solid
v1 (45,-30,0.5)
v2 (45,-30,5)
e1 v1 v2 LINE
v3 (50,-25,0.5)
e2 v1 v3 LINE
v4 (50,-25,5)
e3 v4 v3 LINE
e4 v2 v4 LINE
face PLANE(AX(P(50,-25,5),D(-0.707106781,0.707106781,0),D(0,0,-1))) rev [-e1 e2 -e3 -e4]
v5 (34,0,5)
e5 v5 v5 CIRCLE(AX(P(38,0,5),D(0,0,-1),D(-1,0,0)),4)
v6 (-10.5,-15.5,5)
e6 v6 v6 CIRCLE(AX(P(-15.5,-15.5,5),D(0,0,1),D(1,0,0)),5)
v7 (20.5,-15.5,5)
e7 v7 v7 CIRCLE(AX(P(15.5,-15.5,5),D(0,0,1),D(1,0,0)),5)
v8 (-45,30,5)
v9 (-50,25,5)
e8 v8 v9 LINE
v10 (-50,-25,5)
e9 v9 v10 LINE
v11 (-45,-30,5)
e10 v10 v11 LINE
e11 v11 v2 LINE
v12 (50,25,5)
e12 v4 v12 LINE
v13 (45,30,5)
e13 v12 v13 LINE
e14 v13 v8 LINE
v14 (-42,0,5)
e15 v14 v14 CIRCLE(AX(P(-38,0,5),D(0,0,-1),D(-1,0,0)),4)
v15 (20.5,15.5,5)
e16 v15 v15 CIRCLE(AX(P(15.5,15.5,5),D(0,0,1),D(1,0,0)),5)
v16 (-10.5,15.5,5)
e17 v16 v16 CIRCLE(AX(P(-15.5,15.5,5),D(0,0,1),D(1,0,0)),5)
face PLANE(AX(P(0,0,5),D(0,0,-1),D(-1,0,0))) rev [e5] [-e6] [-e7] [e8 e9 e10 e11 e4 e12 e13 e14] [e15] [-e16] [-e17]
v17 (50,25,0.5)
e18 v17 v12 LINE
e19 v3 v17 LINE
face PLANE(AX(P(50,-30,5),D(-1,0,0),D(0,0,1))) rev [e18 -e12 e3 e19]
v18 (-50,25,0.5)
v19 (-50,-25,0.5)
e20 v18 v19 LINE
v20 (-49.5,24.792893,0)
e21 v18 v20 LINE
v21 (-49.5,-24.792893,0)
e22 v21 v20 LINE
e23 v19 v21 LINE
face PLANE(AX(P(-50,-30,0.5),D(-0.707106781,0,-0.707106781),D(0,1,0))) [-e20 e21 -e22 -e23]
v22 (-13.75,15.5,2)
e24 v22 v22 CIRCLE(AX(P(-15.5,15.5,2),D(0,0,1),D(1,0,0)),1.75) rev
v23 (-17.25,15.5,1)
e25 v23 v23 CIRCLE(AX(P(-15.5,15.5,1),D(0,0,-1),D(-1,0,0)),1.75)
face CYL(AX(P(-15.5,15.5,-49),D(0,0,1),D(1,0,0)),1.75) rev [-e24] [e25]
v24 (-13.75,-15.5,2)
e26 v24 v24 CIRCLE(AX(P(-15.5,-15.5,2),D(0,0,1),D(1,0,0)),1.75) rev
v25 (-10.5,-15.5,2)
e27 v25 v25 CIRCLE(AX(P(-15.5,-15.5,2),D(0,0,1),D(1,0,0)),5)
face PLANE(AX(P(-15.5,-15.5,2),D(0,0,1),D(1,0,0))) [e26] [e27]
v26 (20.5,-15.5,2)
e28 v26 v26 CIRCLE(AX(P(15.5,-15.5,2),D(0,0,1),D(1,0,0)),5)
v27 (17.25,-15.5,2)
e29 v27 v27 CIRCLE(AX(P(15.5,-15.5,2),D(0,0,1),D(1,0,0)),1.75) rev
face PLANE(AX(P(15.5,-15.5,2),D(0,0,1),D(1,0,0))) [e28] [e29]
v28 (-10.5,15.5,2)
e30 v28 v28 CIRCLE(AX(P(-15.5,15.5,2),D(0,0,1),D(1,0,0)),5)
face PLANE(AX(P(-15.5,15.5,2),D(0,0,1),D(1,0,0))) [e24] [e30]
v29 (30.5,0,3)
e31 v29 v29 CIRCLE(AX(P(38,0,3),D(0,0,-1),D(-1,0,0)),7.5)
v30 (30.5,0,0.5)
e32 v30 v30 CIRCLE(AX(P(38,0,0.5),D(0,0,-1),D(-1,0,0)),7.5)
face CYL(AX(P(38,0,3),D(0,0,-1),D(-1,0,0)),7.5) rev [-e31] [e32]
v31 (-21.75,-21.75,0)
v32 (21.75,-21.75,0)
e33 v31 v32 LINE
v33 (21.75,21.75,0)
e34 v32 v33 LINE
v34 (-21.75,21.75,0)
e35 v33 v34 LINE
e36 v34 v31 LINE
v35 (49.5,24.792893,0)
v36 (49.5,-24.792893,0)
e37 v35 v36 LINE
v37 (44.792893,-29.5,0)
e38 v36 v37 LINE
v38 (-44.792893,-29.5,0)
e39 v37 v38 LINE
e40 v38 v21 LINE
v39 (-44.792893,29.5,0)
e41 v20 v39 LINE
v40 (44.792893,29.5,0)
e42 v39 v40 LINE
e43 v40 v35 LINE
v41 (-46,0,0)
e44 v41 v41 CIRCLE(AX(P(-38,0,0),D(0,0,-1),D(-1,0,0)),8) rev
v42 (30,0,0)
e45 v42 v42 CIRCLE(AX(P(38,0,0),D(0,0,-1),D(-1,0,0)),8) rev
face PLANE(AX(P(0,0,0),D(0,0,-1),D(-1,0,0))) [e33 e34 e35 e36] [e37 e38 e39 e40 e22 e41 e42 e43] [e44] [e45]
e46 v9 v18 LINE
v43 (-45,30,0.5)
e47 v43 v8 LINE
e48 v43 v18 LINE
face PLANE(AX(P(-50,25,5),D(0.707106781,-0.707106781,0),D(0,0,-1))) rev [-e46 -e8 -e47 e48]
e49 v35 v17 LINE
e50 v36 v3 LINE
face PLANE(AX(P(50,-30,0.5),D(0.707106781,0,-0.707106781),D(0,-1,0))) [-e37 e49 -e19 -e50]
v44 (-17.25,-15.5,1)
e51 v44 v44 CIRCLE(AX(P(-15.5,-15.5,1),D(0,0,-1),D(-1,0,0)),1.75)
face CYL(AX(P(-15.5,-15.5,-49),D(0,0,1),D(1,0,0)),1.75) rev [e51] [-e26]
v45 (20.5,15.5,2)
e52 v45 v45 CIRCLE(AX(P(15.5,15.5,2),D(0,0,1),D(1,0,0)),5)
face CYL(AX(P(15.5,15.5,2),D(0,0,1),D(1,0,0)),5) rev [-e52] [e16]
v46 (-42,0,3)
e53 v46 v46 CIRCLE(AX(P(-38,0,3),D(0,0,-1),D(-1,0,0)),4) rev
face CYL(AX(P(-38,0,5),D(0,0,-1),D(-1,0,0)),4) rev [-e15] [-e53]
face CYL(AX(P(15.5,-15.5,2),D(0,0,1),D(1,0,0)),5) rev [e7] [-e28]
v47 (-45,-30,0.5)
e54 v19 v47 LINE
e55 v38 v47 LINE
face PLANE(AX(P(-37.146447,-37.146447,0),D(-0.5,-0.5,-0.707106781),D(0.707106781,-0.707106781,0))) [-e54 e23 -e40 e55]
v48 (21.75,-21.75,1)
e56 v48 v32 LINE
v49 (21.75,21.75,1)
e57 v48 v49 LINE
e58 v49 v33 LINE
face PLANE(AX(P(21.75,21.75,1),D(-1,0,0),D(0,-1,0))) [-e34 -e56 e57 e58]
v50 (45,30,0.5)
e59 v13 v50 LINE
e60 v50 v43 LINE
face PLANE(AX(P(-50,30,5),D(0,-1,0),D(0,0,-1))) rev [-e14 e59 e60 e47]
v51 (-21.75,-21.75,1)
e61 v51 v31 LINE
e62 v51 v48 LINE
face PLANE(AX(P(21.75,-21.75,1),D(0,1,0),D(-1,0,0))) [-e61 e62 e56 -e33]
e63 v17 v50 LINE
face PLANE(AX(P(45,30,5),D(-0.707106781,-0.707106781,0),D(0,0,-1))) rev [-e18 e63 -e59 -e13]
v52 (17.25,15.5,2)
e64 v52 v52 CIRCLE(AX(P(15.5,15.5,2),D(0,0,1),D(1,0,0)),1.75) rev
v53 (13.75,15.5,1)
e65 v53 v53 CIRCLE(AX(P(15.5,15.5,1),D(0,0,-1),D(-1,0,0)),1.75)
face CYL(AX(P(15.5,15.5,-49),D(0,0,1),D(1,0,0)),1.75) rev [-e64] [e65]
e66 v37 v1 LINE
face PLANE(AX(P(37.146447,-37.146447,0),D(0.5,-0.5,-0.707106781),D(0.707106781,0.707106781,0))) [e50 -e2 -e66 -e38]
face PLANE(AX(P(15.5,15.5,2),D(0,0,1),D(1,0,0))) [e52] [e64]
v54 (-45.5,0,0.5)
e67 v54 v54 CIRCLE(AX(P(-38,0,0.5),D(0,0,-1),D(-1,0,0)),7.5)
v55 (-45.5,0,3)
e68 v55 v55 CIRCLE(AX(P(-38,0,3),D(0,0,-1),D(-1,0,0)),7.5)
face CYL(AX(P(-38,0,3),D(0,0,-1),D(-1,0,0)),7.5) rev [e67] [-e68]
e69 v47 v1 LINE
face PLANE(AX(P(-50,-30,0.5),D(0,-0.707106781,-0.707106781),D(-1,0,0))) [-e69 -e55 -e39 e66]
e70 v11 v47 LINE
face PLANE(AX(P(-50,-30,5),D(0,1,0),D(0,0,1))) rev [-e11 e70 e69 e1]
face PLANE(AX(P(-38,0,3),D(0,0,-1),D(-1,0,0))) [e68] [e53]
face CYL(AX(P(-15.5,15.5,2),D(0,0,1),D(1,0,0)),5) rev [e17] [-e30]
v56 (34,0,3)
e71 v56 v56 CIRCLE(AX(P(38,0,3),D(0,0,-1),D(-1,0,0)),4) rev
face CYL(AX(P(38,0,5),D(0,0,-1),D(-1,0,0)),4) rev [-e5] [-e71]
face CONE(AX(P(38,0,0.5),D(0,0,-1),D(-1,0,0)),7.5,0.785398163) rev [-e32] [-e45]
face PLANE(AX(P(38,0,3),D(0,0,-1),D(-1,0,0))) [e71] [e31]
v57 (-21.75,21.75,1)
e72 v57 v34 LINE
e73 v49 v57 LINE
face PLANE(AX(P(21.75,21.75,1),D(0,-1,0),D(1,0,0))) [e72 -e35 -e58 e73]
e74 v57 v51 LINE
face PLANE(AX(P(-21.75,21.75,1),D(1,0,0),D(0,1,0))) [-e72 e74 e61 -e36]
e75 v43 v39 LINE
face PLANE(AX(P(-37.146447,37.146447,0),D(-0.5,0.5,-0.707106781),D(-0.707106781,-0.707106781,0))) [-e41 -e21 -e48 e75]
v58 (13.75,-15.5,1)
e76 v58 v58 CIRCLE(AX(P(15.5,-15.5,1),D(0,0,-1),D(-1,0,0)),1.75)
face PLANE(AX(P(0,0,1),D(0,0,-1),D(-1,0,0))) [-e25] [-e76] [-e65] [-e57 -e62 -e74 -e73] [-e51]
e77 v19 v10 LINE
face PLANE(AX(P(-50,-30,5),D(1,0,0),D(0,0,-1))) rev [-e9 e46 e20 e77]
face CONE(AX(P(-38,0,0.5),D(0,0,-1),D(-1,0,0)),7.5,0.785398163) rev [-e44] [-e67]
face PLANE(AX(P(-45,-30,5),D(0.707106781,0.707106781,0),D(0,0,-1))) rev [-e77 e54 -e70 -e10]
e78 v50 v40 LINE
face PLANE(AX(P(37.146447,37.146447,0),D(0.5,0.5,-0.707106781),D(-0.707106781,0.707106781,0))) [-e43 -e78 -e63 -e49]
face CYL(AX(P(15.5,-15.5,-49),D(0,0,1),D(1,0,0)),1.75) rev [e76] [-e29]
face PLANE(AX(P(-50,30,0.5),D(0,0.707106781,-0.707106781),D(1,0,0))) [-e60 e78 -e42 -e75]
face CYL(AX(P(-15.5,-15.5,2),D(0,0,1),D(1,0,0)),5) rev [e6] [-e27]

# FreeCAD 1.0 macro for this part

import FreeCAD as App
import Part
import Sketcher
from FreeCAD import Vector
Q = App.Units.Quantity


def edges_at(feature, points):
    """Names of the edges that pass closest to the given points."""
    edges = feature.Shape.Edges
    near = lambda p: min(range(len(edges)), key=lambda i: edges[i].distToShape(Part.Vertex(*p))[0])
    return sorted({f"Edge{near(p) + 1}" for p in points})

doc = App.newDocument("Part")
body = doc.addObject("PartDesign::Body", "Body")

sketch1 = body.newObject("Sketcher::SketchObject", "Sketch")
sketch1.AttachmentSupport = (doc.getObject("XY_Plane"), [""])
sketch1.MapMode = "FlatFace"
sketch1.addGeometry([
    Part.LineSegment(Vector(-50, 30, 0), Vector(-50, -30, 0)),
    Part.LineSegment(Vector(-50, -30, 0), Vector(50, -30, 0)),
    Part.LineSegment(Vector(50, -30, 0), Vector(50, 30, 0)),
    Part.LineSegment(Vector(50, 30, 0), Vector(-50, 30, 0)),
], False)
sketch1.addConstraint([
    Sketcher.Constraint("Coincident", 0, 2, 1, 1),
    Sketcher.Constraint("Coincident", 1, 2, 2, 1),
    Sketcher.Constraint("Coincident", 2, 2, 3, 1),
    Sketcher.Constraint("Coincident", 3, 2, 0, 1),
    Sketcher.Constraint("Vertical", 0),
    Sketcher.Constraint("Horizontal", 1),
    Sketcher.Constraint("Vertical", 2),
    Sketcher.Constraint("Horizontal", 3),
    Sketcher.Constraint("Symmetric", 0, 2, 2, 2, -1, 1),
    Sketcher.Constraint("DistanceX", 1, 1, 1, 2, Q("100 mm")),
    Sketcher.Constraint("DistanceY", 0, 2, 0, 1, Q("60 mm")),
])
pad1 = body.newObject("PartDesign::Pad", "Pad")
pad1.Profile = sketch1
pad1.Length = 5

sketch2 = body.newObject("Sketcher::SketchObject", "Sketch001")
sketch2.AttachmentSupport = (doc.getObject("XY_Plane"), [""])
sketch2.MapMode = "FlatFace"
sketch2.addGeometry([
    Part.LineSegment(Vector(-22, 22, 0), Vector(-22, -22, 0)),
    Part.LineSegment(Vector(-22, -22, 0), Vector(22, -22, 0)),
    Part.LineSegment(Vector(22, -22, 0), Vector(22, 22, 0)),
    Part.LineSegment(Vector(22, 22, 0), Vector(-22, 22, 0)),
], False)
sketch2.addConstraint([
    Sketcher.Constraint("Coincident", 0, 2, 1, 1),
    Sketcher.Constraint("Coincident", 1, 2, 2, 1),
    Sketcher.Constraint("Coincident", 2, 2, 3, 1),
    Sketcher.Constraint("Coincident", 3, 2, 0, 1),
    Sketcher.Constraint("Vertical", 0),
    Sketcher.Constraint("Horizontal", 1),
    Sketcher.Constraint("Vertical", 2),
    Sketcher.Constraint("Horizontal", 3),
    Sketcher.Constraint("Symmetric", 0, 2, 2, 2, -1, 1),
    Sketcher.Constraint("Equal", 3, 0),
    Sketcher.Constraint("DistanceX", 1, 1, 1, 2, Q("43.5 mm")),
])
pocket1 = body.newObject("PartDesign::Pocket", "Pocket")
pocket1.Profile = sketch2
pocket1.Length = 1
pocket1.Reversed = True

sketch3 = body.newObject("Sketcher::SketchObject", "Sketch002")
sketch3.AttachmentSupport = (doc.getObject("XY_Plane"), [""])
sketch3.MapMode = "FlatFace"
sketch3.AttachmentOffset = App.Placement(Vector(0, 0, -48), App.Rotation())
sketch3.addGeometry([
    Part.Circle(Vector(-15.5, 15.5, 0), Vector(0, 0, 1), 1.8),
    Part.Circle(Vector(15.5, 15.5, 0), Vector(0, 0, 1), 1.8),
    Part.Circle(Vector(15.5, -15.5, 0), Vector(0, 0, 1), 1.8),
    Part.Circle(Vector(-15.5, -15.5, 0), Vector(0, 0, 1), 1.8),
], False)
sketch3.addConstraint([
    Sketcher.Constraint("Equal", 0, 1),
    Sketcher.Constraint("Equal", 1, 2),
    Sketcher.Constraint("Equal", 2, 3),
    Sketcher.Constraint("Symmetric", 0, 3, 2, 3, -1, 1),
    Sketcher.Constraint("Symmetric", 1, 3, 3, 3, -1, 1),
    Sketcher.Constraint("Symmetric", 0, 3, 1, 3, -2),
    Sketcher.Constraint("Diameter", 0, Q("3.5 mm")),
    Sketcher.Constraint("DistanceX", 0, 3, 1, 3, Q("31 mm")),
    Sketcher.Constraint("DistanceY", 2, 3, 1, 3, Q("31 mm")),
])
pocket2 = body.newObject("PartDesign::Pocket", "Pocket001")
pocket2.Profile = sketch3
pocket2.Type = "ThroughAll"
pocket2.Midplane = True

sketch4 = body.newObject("Sketcher::SketchObject", "Sketch003")
sketch4.AttachmentSupport = (doc.getObject("XY_Plane"), [""])
sketch4.MapMode = "FlatFace"
sketch4.AttachmentOffset = App.Placement(Vector(0, 0, 5), App.Rotation())
sketch4.addGeometry([
    Part.Circle(Vector(-16, 16, 0), Vector(0, 0, 1), 5),
    Part.Circle(Vector(16, 16, 0), Vector(0, 0, 1), 5),
    Part.Circle(Vector(15, -16, 0), Vector(0, 0, 1), 5),
    Part.Circle(Vector(-16, -16, 0), Vector(0, 0, 1), 5),
], False)
sketch4.addConstraint([
    Sketcher.Constraint("Equal", 0, 1),
    Sketcher.Constraint("Equal", 1, 2),
    Sketcher.Constraint("Equal", 2, 3),
    Sketcher.Constraint("Symmetric", 0, 3, 2, 3, -1, 1),
    Sketcher.Constraint("Symmetric", 1, 3, 3, 3, -1, 1),
    Sketcher.Constraint("Symmetric", 0, 3, 1, 3, -2),
    Sketcher.Constraint("Diameter", 0, Q("10 mm")),
    Sketcher.Constraint("DistanceX", 0, 3, 1, 3, Q("31 mm")),
    Sketcher.Constraint("DistanceY", 2, 3, 1, 3, Q("31 mm")),
])
pocket3 = body.newObject("PartDesign::Pocket", "Pocket002")
pocket3.Profile = sketch4
pocket3.Length = 3

sketch5 = body.newObject("Sketcher::SketchObject", "Sketch004")
sketch5.AttachmentSupport = (doc.getObject("XY_Plane"), [""])
sketch5.MapMode = "FlatFace"
sketch5.addGeometry([
    Part.Circle(Vector(38, 0, 0), Vector(0, 0, 1), 4),
    Part.Circle(Vector(-38, 0, 0), Vector(0, 0, 1), 4),
], False)
sketch5.addConstraint([
    Sketcher.Constraint("Equal", 0, 1),
    Sketcher.Constraint("Symmetric", 0, 3, 1, 3, -1, 1),
    Sketcher.Constraint("PointOnObject", 0, 3, -1),
    Sketcher.Constraint("Diameter", 0, Q("8 mm")),
    Sketcher.Constraint("DistanceX", -1, 1, 0, 3, Q("38 mm")),
])
pocket4 = body.newObject("PartDesign::Pocket", "Pocket003")
pocket4.Profile = sketch5
pocket4.Type = "ThroughAll"
pocket4.Midplane = True

sketch6 = body.newObject("Sketcher::SketchObject", "Sketch005")
sketch6.AttachmentSupport = (doc.getObject("XY_Plane"), [""])
sketch6.MapMode = "FlatFace"
sketch6.addGeometry([
    Part.Circle(Vector(38, 0, 0), Vector(0, 0, 1), 8),
    Part.Circle(Vector(-38, 0, 0), Vector(0, 0, 1), 8),
], False)
sketch6.addConstraint([
    Sketcher.Constraint("Equal", 0, 1),
    Sketcher.Constraint("Symmetric", 0, 3, 1, 3, -1, 1),
    Sketcher.Constraint("PointOnObject", 0, 3, -1),
    Sketcher.Constraint("Diameter", 0, Q("15 mm")),
    Sketcher.Constraint("DistanceX", -1, 1, 0, 3, Q("38 mm")),
])
pocket5 = body.newObject("PartDesign::Pocket", "Pocket004")
pocket5.Profile = sketch6
pocket5.Length = 3
pocket5.Reversed = True
doc.recompute()

chamfer = body.newObject("PartDesign::Chamfer", "Chamfer")
chamfer.Base = (pocket5, edges_at(pocket5, [(45.5, 0, 0), (-30.5, 0, 0)]))
chamfer.Size = 0.5
doc.recompute()

chamfer2 = body.newObject("PartDesign::Chamfer", "Chamfer001")
chamfer2.Base = (chamfer, edges_at(chamfer, [
    (50, -30, 2.5),
    (-50, -30, 2.5),
    (-50, 30, 2.5),
    (50, 30, 2.5),
]))
chamfer2.Size = 5
doc.recompute()

chamfer3 = body.newObject("PartDesign::Chamfer", "Chamfer002")
chamfer3.Base = (chamfer2, edges_at(chamfer2, [
    (0, 30, 0),
    (50, 0, 0),
    (0, -30, 0),
    (-50, 0, 0),
    (47.5, -27.5, 0),
    (-47.5, -27.5, 0),
    (-47.5, 27.5, 0),
    (47.5, 27.5, 0),
]))
chamfer3.Size = 0.5

doc.recompute()
